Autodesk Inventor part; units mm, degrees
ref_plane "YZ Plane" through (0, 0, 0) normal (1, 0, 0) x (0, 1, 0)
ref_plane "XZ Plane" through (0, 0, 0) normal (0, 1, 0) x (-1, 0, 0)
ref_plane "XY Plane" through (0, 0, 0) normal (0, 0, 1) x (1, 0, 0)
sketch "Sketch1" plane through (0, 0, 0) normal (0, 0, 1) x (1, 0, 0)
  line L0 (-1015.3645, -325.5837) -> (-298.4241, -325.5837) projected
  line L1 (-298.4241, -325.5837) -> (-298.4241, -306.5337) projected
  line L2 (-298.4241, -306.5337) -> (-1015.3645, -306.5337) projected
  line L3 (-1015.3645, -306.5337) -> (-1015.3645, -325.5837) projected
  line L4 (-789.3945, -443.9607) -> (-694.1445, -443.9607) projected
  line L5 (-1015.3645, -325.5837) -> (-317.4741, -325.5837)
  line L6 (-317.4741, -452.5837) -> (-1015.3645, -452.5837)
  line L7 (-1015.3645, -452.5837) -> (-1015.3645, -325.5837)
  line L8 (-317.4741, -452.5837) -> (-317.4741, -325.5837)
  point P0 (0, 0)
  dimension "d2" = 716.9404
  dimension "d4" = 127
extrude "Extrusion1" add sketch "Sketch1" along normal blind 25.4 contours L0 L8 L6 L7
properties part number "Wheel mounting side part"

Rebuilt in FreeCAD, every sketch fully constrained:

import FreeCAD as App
import Part
import Sketcher
Q = App.Units.Quantity


def add_polygon(sketch, points):
    """Adds a closed chain of lines whose ends are joined by coincident constraints."""
    first, n = sketch.GeometryCount, len(points)
    for a, b in zip(points, points[1:] + points[:1]):
        sketch.addGeometry(Part.LineSegment(App.Vector(*a, 0), App.Vector(*b, 0)), False)
    for i in range(n):
        sketch.addConstraint(Sketcher.Constraint("Coincident", first + i, 2, first + (i + 1) % n, 1))

doc = App.newDocument("Part")
params = doc.addObject("Spreadsheet::Sheet", "Params")
for row, (alias, value) in enumerate([
    ("sketch1_height", "5 in"),
    ("sketch1_width", "27.476 in"),
    ("pad1_length", "1 in"),
], start=1):
    params.set(f"A{row}", alias)
    params.set(f"B{row}", "=" + value)
    params.setAlias(f"B{row}", alias)

body = doc.addObject("PartDesign::Body", "Body")

sketch1 = body.newObject("Sketcher::SketchObject", "Sketch")
sketch1.AttachmentSupport = (doc.getObject("XY_Plane"), [""])
sketch1.MapMode = "FlatFace"
add_polygon(sketch1, [(-317, -326), (-1015, -326), (-1015, -453), (-317, -453)])
sketch1.addConstraint([
    Sketcher.Constraint("Horizontal", 0),
    Sketcher.Constraint("Vertical", 1),
    Sketcher.Constraint("Horizontal", 2),
    Sketcher.Constraint("Vertical", 3),
    Sketcher.Constraint("DistanceY", 1, 2, 1, 1, Q("5 in")),
    Sketcher.Constraint("DistanceX", 0, 2, 0, 1, Q("27.476 in")),
    Sketcher.Constraint("DistanceX", 0, 2, -1, 1, Q("1015.3645 mm")),
    Sketcher.Constraint("DistanceY", 0, 2, -1, 1, Q("325.5837 mm")),
])
sketch1.setExpression("Constraints[8]", "Params.sketch1_height")
sketch1.setExpression("Constraints[9]", "Params.sketch1_width")
pad1 = body.newObject("PartDesign::Pad", "Pad")
pad1.Profile = sketch1
pad1.setExpression("Length", "Params.pad1_length")

doc.recompute()
